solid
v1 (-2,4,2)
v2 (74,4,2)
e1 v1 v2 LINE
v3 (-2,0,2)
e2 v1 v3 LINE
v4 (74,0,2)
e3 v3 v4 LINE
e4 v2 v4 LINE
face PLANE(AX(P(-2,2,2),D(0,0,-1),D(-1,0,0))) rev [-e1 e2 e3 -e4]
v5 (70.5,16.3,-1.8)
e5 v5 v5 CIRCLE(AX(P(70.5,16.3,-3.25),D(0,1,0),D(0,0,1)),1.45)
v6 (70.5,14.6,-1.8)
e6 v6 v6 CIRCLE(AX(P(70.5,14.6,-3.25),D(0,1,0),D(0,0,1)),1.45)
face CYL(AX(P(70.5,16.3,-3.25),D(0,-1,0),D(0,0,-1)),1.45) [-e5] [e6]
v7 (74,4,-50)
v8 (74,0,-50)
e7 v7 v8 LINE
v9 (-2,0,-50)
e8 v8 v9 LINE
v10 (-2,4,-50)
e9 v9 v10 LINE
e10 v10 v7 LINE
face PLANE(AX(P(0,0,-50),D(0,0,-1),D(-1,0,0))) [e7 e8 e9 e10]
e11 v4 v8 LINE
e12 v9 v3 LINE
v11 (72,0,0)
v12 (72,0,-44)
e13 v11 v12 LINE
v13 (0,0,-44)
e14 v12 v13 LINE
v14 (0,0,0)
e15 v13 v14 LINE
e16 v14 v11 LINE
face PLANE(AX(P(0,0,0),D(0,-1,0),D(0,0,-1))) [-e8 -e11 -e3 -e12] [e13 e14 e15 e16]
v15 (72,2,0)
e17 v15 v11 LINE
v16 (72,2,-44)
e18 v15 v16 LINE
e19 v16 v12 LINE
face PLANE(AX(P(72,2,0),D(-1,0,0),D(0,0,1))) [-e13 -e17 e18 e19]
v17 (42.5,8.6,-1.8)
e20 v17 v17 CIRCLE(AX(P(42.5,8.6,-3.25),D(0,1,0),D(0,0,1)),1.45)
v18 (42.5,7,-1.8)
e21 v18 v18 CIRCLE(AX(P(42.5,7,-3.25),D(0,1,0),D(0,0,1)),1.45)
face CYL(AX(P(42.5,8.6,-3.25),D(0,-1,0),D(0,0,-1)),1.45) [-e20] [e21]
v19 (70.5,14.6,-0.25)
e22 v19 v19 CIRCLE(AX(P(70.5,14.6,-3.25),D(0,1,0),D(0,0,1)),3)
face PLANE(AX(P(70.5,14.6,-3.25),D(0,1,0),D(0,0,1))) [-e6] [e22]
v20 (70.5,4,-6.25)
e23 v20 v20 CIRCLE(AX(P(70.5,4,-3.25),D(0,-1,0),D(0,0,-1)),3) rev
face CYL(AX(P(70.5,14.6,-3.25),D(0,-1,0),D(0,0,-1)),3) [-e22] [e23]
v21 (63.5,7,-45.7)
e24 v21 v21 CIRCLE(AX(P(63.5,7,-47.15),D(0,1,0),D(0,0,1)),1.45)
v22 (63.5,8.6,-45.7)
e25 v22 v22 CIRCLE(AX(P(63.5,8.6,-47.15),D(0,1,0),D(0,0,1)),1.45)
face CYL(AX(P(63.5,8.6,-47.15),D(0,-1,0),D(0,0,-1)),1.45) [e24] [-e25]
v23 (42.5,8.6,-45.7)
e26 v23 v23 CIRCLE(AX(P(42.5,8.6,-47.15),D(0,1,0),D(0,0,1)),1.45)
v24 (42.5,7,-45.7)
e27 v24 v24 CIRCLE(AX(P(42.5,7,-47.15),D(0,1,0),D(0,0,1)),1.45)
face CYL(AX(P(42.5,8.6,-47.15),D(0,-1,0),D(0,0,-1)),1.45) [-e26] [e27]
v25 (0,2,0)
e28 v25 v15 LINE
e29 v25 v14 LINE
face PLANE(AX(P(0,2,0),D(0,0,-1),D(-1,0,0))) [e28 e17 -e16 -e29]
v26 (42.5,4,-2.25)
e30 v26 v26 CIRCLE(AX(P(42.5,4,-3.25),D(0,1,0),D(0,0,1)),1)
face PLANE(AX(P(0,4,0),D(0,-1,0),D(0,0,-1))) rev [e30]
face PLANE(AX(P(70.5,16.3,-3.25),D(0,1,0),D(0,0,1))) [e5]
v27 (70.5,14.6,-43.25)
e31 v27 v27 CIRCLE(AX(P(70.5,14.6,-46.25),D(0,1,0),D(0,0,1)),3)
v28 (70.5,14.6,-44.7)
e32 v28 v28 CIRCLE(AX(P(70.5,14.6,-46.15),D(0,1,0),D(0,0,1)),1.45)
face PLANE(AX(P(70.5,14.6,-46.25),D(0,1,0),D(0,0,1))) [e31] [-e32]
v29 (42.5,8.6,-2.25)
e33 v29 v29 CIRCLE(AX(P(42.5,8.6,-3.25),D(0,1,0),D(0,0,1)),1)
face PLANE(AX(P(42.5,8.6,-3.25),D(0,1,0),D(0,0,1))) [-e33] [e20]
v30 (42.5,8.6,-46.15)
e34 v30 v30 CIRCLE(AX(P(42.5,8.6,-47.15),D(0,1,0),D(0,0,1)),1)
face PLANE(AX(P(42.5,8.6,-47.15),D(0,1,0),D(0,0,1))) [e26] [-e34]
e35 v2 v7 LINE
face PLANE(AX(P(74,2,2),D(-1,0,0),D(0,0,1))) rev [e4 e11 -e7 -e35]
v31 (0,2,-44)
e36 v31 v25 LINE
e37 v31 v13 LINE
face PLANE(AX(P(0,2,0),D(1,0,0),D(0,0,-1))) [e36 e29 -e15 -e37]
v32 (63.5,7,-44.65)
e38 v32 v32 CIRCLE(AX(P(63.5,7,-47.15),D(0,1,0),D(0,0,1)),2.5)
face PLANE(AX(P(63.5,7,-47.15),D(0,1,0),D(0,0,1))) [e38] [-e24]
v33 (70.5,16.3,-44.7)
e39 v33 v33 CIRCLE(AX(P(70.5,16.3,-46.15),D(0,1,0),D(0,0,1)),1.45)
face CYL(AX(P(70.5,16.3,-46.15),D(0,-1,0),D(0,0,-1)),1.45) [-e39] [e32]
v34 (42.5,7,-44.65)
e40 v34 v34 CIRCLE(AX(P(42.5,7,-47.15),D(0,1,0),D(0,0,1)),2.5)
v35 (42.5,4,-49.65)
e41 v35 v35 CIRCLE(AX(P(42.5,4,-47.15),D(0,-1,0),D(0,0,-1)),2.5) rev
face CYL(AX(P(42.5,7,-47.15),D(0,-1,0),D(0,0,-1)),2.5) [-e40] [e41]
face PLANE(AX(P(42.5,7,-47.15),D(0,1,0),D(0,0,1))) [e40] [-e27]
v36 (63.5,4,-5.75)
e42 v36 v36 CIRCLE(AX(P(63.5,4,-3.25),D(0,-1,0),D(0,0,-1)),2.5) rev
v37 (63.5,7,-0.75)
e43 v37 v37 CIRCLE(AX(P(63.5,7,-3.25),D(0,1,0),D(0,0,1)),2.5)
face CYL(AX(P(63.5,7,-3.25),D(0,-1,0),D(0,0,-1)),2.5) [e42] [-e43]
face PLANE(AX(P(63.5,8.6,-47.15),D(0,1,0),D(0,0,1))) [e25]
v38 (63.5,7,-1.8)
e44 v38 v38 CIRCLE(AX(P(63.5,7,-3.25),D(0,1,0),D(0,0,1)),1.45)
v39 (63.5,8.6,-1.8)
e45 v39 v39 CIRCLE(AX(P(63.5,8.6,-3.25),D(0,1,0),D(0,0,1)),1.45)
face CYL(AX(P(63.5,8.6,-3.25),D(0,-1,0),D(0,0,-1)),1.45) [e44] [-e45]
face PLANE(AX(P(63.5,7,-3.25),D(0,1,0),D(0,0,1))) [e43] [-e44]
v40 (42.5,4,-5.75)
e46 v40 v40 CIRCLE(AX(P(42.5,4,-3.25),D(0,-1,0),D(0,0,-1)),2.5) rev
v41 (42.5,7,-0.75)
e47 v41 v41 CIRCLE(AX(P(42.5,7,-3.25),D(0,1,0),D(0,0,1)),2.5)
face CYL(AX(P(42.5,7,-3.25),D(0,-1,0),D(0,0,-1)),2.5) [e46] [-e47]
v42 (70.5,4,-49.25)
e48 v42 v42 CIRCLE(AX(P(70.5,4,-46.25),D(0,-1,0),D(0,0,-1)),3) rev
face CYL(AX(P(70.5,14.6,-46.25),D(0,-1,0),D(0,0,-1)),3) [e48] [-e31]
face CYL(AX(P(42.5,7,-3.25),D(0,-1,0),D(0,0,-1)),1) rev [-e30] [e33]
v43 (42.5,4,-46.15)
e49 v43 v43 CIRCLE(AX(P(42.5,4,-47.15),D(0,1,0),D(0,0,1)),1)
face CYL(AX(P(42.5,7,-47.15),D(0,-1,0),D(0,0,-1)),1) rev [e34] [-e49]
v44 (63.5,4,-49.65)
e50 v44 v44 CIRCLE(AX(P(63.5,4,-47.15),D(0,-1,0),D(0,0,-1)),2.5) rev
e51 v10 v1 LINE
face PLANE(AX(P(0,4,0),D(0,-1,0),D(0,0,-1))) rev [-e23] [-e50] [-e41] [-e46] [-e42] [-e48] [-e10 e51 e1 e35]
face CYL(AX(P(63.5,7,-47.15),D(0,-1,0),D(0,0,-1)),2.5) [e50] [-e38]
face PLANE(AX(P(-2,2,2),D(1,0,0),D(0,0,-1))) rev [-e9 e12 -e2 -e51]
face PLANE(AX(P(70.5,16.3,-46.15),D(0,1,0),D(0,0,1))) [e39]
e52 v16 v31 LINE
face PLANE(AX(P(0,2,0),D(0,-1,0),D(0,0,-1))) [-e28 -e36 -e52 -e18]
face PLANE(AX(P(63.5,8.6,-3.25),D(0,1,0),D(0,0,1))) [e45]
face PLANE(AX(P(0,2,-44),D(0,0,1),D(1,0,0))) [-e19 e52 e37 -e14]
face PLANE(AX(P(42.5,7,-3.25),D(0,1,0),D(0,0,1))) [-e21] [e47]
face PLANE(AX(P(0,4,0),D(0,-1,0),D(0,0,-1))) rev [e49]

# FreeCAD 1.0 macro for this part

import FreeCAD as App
import Part
import Sketcher

V = App.Vector

doc = App.newDocument("Part")
params = doc.addObject("Spreadsheet::Sheet", "Params")
for row, (alias, value) in enumerate([
    ("sketch1_width", "76 mm"),
    ("sketch1_width2", "72 mm"),
    ("sketch1_height", "48 mm"),
    ("sketch1_height2", "44 mm"),
    ("pad1_length", "2 mm"),
    ("sketch2_width", "76 mm"),
    ("sketch2_height", "48 mm"),
    ("pad2_length", "2 mm"),
    ("sketch3_width", "76 mm"),
    ("sketch3_height", "4 mm"),
    ("pad3_length", "4 mm"),
    ("sketch4_diameter", "5 mm"),
    ("sketch4_diameter2", "2 mm"),
    ("pad4_length", "3 mm"),
    ("sketch5_diameter", "2 mm"),
    ("sketch5_diameter2", "2.9 mm"),
    ("pad5_length", "1.6 mm"),
    ("sketch6_diameter", "6 mm"),
    ("pad6_length", "10.6 mm"),
    ("sketch7_diameter", "2.9 mm"),
    ("pad7_length", "1.7 mm"),
], start=1):
    params.set(f"A{row}", alias)
    params.set(f"B{row}", "=" + value)
    params.setAlias(f"B{row}", alias)

body = doc.addObject("PartDesign::Body", "Body")

# Sketch on XZ plane
sketch1 = body.newObject("Sketcher::SketchObject", "Sketch")
sketch1.AttachmentSupport = (doc.getObject("XZ_Plane"), [""])
sketch1.MapMode = "FlatFace"
sketch1.addGeometry([
    Part.LineSegment(V(-2, -46, 0), V(-2, 2, 0)),  # 0
    Part.LineSegment(V(-2, 2, 0), V(74, 2, 0)),  # 1
    Part.LineSegment(V(74, 2, 0), V(74, -46, 0)),  # 2
    Part.LineSegment(V(74, -46, 0), V(-2, -46, 0)),  # 3
    Part.LineSegment(V(72, 0, 0), V(0, 0, 0)),  # 4
    Part.LineSegment(V(0, 0, 0), V(0, -44, 0)),  # 5
    Part.LineSegment(V(0, -44, 0), V(72, -44, 0)),  # 6
    Part.LineSegment(V(72, -44, 0), V(72, 0, 0)),  # 7
], False)
sketch1.addConstraint([
    Sketcher.Constraint("Coincident", 0, 2, 1, 1),
    Sketcher.Constraint("Coincident", 1, 2, 2, 1),
    Sketcher.Constraint("Coincident", 2, 2, 3, 1),
    Sketcher.Constraint("Coincident", 3, 2, 0, 1),
    Sketcher.Constraint("Coincident", 4, 2, 5, 1),
    Sketcher.Constraint("Coincident", 5, 2, 6, 1),
    Sketcher.Constraint("Coincident", 6, 2, 7, 1),
    Sketcher.Constraint("Coincident", 7, 2, 4, 1),
    Sketcher.Constraint("Vertical", 0),
    Sketcher.Constraint("Horizontal", 1),
    Sketcher.Constraint("Vertical", 2),
    Sketcher.Constraint("Horizontal", 3),
    Sketcher.Constraint("Horizontal", 4),
    Sketcher.Constraint("Vertical", 5),
    Sketcher.Constraint("Horizontal", 6),
    Sketcher.Constraint("Vertical", 7),
    Sketcher.Constraint("Coincident", 4, 2, -1, 1),
    Sketcher.Constraint("DistanceX", 1, 1, 1, 2, 76.0),
    Sketcher.Constraint("DistanceX", 4, 2, 4, 1, 72.0),
    Sketcher.Constraint("DistanceY", 0, 1, 0, 2, 48.0),
    Sketcher.Constraint("DistanceY", 5, 2, 5, 1, 44.0),
    Sketcher.Constraint("DistanceX", 0, 2, -1, 1, 2.0),
    Sketcher.Constraint("DistanceY", -1, 1, 0, 2, 2.0),
])
sketch1.setExpression("Constraints[17]", "Params.sketch1_width")
sketch1.setExpression("Constraints[18]", "Params.sketch1_width2")
sketch1.setExpression("Constraints[19]", "Params.sketch1_height")
sketch1.setExpression("Constraints[20]", "Params.sketch1_height2")
pad1 = body.newObject("PartDesign::Pad", "Pad")
pad1.Profile = sketch1
pad1.setExpression("Length", "Params.pad1_length")
pad1.Reversed = True

# Sketch on XZ plane
sketch2 = body.newObject("Sketcher::SketchObject", "Sketch001")
sketch2.AttachmentSupport = (doc.getObject("XZ_Plane"), [""])
sketch2.MapMode = "FlatFace"
sketch2.AttachmentOffset = App.Placement(V(0, 0, -2), App.Rotation())
sketch2.addGeometry([
    Part.LineSegment(V(-2, -46, 0), V(-2, 2, 0)),
    Part.LineSegment(V(-2, 2, 0), V(74, 2, 0)),
    Part.LineSegment(V(74, 2, 0), V(74, -46, 0)),
    Part.LineSegment(V(74, -46, 0), V(-2, -46, 0)),
], False)
sketch2.addConstraint([
    Sketcher.Constraint("Coincident", 0, 2, 1, 1),
    Sketcher.Constraint("Coincident", 1, 2, 2, 1),
    Sketcher.Constraint("Coincident", 2, 2, 3, 1),
    Sketcher.Constraint("Coincident", 3, 2, 0, 1),
    Sketcher.Constraint("Vertical", 0),
    Sketcher.Constraint("Horizontal", 1),
    Sketcher.Constraint("Vertical", 2),
    Sketcher.Constraint("Horizontal", 3),
    Sketcher.Constraint("DistanceX", 1, 1, 1, 2, 76.0),
    Sketcher.Constraint("DistanceY", 0, 1, 0, 2, 48.0),
    Sketcher.Constraint("DistanceX", 0, 2, -1, 1, 2.0),
    Sketcher.Constraint("DistanceY", -1, 1, 0, 2, 2.0),
])
sketch2.setExpression("Constraints[8]", "Params.sketch2_width")
sketch2.setExpression("Constraints[9]", "Params.sketch2_height")
pad2 = body.newObject("PartDesign::Pad", "Pad001")
pad2.Profile = sketch2
pad2.setExpression("Length", "Params.pad2_length")
pad2.Reversed = True

# Sketch on XY plane
sketch3 = body.newObject("Sketcher::SketchObject", "Sketch002")
sketch3.AttachmentSupport = (doc.getObject("XY_Plane"), [""])
sketch3.MapMode = "FlatFace"
sketch3.AttachmentOffset = App.Placement(V(0, 0, -46), App.Rotation())
sketch3.addGeometry([
    Part.LineSegment(V(74, 4, 0), V(74, 0, 0)),
    Part.LineSegment(V(74, 0, 0), V(-2, 0, 0)),
    Part.LineSegment(V(-2, 0, 0), V(-2, 4, 0)),
    Part.LineSegment(V(-2, 4, 0), V(74, 4, 0)),
], False)
sketch3.addConstraint([
    Sketcher.Constraint("Coincident", 0, 2, 1, 1),
    Sketcher.Constraint("Coincident", 1, 2, 2, 1),
    Sketcher.Constraint("Coincident", 2, 2, 3, 1),
    Sketcher.Constraint("Coincident", 3, 2, 0, 1),
    Sketcher.Constraint("Vertical", 0),
    Sketcher.Constraint("Horizontal", 1),
    Sketcher.Constraint("Vertical", 2),
    Sketcher.Constraint("Horizontal", 3),
    Sketcher.Constraint("PointOnObject", 0, 2, -1),
    Sketcher.Constraint("DistanceX", 1, 2, 1, 1, 76.0),
    Sketcher.Constraint("DistanceY", 0, 2, 0, 1, 4.0),
    Sketcher.Constraint("DistanceX", -1, 1, 0, 2, 74.0),
])
sketch3.setExpression("Constraints[9]", "Params.sketch3_width")
sketch3.setExpression("Constraints[10]", "Params.sketch3_height")
pad3 = body.newObject("PartDesign::Pad", "Pad002")
pad3.Profile = sketch3
pad3.setExpression("Length", "Params.pad3_length")
pad3.Reversed = True

# Sketch on XZ plane
sketch4 = body.newObject("Sketcher::SketchObject", "Sketch003")
sketch4.AttachmentSupport = (doc.getObject("XZ_Plane"), [""])
sketch4.MapMode = "FlatFace"
sketch4.AttachmentOffset = App.Placement(V(0, 0, -4), App.Rotation())
sketch4.addGeometry([
    Part.Circle(V(42.5, -3.2, 0), V(0, 0, 1), 2.5),  # 0
    Part.Circle(V(42.5, -3.2, 0), V(0, 0, 1), 1),  # 1
    Part.Circle(V(63.5, -3.2, 0), V(0, 0, 1), 2.5),  # 2
    Part.Circle(V(42.5, -47.1, 0), V(0, 0, 1), 2.5),  # 3
    Part.Circle(V(42.5, -47.1, 0), V(0, 0, 1), 1),  # 4
    Part.Circle(V(63.5, -47.1, 0), V(0, 0, 1), 2.5),  # 5
], False)
sketch4.addConstraint([
    Sketcher.Constraint("Coincident", 1, 3, 0, 3),
    Sketcher.Constraint("Coincident", 4, 3, 3, 3),
    Sketcher.Constraint("Equal", 0, 2),
    Sketcher.Constraint("Equal", 2, 3),
    Sketcher.Constraint("Equal", 1, 4),
    Sketcher.Constraint("Equal", 3, 5),
    Sketcher.Constraint("Horizontal", 1, 3, 2, 3),
    Sketcher.Constraint("Horizontal", 4, 3, 5, 3),
    Sketcher.Constraint("Vertical", 1, 3, 3, 3),
    Sketcher.Constraint("Vertical", 2, 3, 5, 3),
    Sketcher.Constraint("Diameter", 0, 5.0),
    Sketcher.Constraint("Diameter", 1, 2.0),
    Sketcher.Constraint("DistanceX", 0, 3, 2, 3, 21.0),
    Sketcher.Constraint("DistanceX", -1, 1, 0, 3, 42.5),
    Sketcher.Constraint("DistanceY", 3, 3, 0, 3, 43.9),
    Sketcher.Constraint("DistanceY", 0, 3, -1, 1, 3.25),
])
sketch4.setExpression("Constraints[10]", "Params.sketch4_diameter")
sketch4.setExpression("Constraints[11]", "Params.sketch4_diameter2")
pad4 = body.newObject("PartDesign::Pad", "Pad003")
pad4.Profile = sketch4
pad4.setExpression("Length", "Params.pad4_length")
pad4.Reversed = True

# Sketch on XZ plane
sketch5 = body.newObject("Sketcher::SketchObject", "Sketch004")
sketch5.AttachmentSupport = (doc.getObject("XZ_Plane"), [""])
sketch5.MapMode = "FlatFace"
sketch5.AttachmentOffset = App.Placement(V(0, 0, -7), App.Rotation())
sketch5.addGeometry([
    Part.Circle(V(42.5, -3.2, 0), V(0, 0, 1), 1.4),  # 0
    Part.Circle(V(42.5, -3.2, 0), V(0, 0, 1), 1),  # 1
    Part.Circle(V(42.5, -47.1, 0), V(0, 0, 1), 1.4),  # 2
    Part.Circle(V(42.5, -47.1, 0), V(0, 0, 1), 1),  # 3
    Part.Circle(V(63.5, -3.2, 0), V(0, 0, 1), 1.4),  # 4
    Part.Circle(V(63.5, -47.1, 0), V(0, 0, 1), 1.4),  # 5
], False)
sketch5.addConstraint([
    Sketcher.Constraint("Coincident", 1, 3, 0, 3),
    Sketcher.Constraint("Coincident", 3, 3, 2, 3),
    Sketcher.Constraint("Equal", 0, 2),
    Sketcher.Constraint("Equal", 1, 3),
    Sketcher.Constraint("Equal", 2, 4),
    Sketcher.Constraint("Equal", 4, 5),
    Sketcher.Constraint("Horizontal", 1, 3, 4, 3),
    Sketcher.Constraint("Horizontal", 3, 3, 5, 3),
    Sketcher.Constraint("Vertical", 1, 3, 2, 3),
    Sketcher.Constraint("Vertical", 4, 3, 5, 3),
    Sketcher.Constraint("Diameter", 1, 2.0),
    Sketcher.Constraint("Diameter", 0, 2.9),
    Sketcher.Constraint("DistanceX", 0, 3, 4, 3, 21.0),
    Sketcher.Constraint("DistanceX", -1, 1, 0, 3, 42.5),
    Sketcher.Constraint("DistanceY", 2, 3, 0, 3, 43.9),
    Sketcher.Constraint("DistanceY", 0, 3, -1, 1, 3.25),
])
sketch5.setExpression("Constraints[10]", "Params.sketch5_diameter")
sketch5.setExpression("Constraints[11]", "Params.sketch5_diameter2")
pad5 = body.newObject("PartDesign::Pad", "Pad004")
pad5.Profile = sketch5
pad5.setExpression("Length", "Params.pad5_length")
pad5.Reversed = True

# Sketch on XZ plane
sketch6 = body.newObject("Sketcher::SketchObject", "Sketch005")
sketch6.AttachmentSupport = (doc.getObject("XZ_Plane"), [""])
sketch6.MapMode = "FlatFace"
sketch6.AttachmentOffset = App.Placement(V(0, 0, -4), App.Rotation())
sketch6.addGeometry([
    Part.Circle(V(70.5, -3.2, 0), V(0, 0, 1), 3),
    Part.Circle(V(70.5, -46.2, 0), V(0, 0, 1), 3),
], False)
sketch6.addConstraint([
    Sketcher.Constraint("Equal", 0, 1),
    Sketcher.Constraint("Vertical", 0, 3, 1, 3),
    Sketcher.Constraint("Diameter", 0, 6.0),
    Sketcher.Constraint("DistanceY", 1, 3, 0, 3, 43.0),
    Sketcher.Constraint("DistanceX", -1, 1, 0, 3, 70.5),
    Sketcher.Constraint("DistanceY", 0, 3, -1, 1, 3.25),
])
sketch6.setExpression("Constraints[2]", "Params.sketch6_diameter")
pad6 = body.newObject("PartDesign::Pad", "Pad005")
pad6.Profile = sketch6
pad6.setExpression("Length", "Params.pad6_length")
pad6.Reversed = True

# Sketch on XZ plane
sketch7 = body.newObject("Sketcher::SketchObject", "Sketch006")
sketch7.AttachmentSupport = (doc.getObject("XZ_Plane"), [""])
sketch7.MapMode = "FlatFace"
sketch7.AttachmentOffset = App.Placement(V(0, 0, -14.6), App.Rotation())
sketch7.addGeometry([
    Part.Circle(V(70.5, -3.2, 0), V(0, 0, 1), 1.4),
    Part.Circle(V(70.5, -46.1, 0), V(0, 0, 1), 1.4),
], False)
sketch7.addConstraint([
    Sketcher.Constraint("Equal", 0, 1),
    Sketcher.Constraint("Vertical", 0, 3, 1, 3),
    Sketcher.Constraint("Diameter", 0, 2.9),
    Sketcher.Constraint("DistanceX", -1, 1, 0, 3, 70.5),
    Sketcher.Constraint("DistanceY", 1, 3, 0, 3, 42.9),
    Sketcher.Constraint("DistanceY", 0, 3, -1, 1, 3.25),
])
sketch7.setExpression("Constraints[2]", "Params.sketch7_diameter")
pad7 = body.newObject("PartDesign::Pad", "Pad006")
pad7.Profile = sketch7
pad7.setExpression("Length", "Params.pad7_length")
pad7.Reversed = True

doc.recompute()
